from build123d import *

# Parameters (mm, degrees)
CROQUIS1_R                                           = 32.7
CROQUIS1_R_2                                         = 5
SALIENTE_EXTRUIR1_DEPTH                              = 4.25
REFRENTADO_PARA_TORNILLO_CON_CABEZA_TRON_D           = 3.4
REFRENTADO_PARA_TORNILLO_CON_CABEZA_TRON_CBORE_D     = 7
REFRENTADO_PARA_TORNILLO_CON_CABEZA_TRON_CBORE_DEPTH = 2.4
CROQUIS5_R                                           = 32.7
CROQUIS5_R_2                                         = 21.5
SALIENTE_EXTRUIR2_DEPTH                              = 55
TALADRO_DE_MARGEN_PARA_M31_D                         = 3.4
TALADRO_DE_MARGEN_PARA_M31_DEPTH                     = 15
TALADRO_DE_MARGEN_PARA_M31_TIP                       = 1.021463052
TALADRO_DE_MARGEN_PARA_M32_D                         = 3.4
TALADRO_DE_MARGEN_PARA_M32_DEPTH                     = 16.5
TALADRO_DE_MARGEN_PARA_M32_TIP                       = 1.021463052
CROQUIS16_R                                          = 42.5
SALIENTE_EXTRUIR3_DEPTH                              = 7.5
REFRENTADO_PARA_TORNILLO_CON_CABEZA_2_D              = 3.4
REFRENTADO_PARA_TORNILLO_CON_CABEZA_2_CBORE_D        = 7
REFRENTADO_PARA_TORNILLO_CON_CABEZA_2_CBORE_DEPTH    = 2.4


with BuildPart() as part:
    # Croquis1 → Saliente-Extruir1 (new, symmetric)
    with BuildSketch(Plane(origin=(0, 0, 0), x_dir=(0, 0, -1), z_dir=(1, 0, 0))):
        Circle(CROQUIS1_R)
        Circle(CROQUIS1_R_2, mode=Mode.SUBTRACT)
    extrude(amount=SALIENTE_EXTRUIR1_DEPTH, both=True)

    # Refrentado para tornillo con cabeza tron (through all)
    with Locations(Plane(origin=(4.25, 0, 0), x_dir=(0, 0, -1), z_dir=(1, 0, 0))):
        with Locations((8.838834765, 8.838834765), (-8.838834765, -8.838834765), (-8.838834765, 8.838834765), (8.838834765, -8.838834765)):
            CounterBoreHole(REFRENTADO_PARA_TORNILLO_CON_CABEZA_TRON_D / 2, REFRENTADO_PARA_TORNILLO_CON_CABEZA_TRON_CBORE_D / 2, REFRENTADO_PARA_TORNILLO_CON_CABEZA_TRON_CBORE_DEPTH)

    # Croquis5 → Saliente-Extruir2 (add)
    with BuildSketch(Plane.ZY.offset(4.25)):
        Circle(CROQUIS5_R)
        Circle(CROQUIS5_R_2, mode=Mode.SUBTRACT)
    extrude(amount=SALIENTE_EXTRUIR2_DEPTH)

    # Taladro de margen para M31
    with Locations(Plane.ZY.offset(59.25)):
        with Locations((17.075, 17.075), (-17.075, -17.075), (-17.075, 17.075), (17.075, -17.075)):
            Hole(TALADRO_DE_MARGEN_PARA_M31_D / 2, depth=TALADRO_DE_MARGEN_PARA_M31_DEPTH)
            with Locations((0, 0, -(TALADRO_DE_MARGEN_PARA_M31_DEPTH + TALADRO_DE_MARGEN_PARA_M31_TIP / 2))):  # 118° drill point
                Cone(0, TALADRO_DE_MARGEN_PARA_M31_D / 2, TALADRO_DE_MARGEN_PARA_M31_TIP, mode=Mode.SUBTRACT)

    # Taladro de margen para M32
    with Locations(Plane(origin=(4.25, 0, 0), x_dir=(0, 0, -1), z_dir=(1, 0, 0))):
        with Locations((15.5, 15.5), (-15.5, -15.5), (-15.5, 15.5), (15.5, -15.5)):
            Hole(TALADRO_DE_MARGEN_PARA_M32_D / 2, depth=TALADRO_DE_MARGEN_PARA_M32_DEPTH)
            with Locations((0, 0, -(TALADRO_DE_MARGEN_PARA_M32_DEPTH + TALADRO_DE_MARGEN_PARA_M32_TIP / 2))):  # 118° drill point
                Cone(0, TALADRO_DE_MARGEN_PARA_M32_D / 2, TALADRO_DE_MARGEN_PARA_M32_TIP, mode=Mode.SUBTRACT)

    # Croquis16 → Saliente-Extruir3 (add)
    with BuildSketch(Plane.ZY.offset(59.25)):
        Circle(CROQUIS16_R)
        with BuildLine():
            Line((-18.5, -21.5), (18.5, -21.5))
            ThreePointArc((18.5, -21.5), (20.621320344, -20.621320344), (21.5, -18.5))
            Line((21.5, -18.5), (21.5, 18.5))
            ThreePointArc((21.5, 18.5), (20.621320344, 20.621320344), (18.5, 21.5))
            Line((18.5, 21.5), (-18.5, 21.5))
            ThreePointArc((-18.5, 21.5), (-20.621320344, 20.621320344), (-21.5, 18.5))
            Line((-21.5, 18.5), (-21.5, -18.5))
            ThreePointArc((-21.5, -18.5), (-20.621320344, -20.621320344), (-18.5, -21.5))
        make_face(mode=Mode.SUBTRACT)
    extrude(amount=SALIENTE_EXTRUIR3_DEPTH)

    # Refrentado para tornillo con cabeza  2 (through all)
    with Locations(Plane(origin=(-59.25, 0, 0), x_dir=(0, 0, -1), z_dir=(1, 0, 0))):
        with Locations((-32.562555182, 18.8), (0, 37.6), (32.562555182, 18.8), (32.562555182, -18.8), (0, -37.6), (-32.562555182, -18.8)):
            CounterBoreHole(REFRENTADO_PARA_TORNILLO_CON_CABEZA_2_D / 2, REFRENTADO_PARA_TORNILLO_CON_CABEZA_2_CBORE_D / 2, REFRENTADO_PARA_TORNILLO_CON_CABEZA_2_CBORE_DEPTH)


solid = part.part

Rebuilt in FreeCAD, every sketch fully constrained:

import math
import FreeCAD as App
import Part
import Sketcher

doc = App.newDocument("Part")
body = doc.addObject("PartDesign::Body", "Body")

# Sketch on YZ plane
sketch1 = body.newObject("Sketcher::SketchObject", "Sketch")
sketch1.AttachmentSupport = (doc.getObject("YZ_Plane"), [""])
sketch1.MapMode = "FlatFace"
sketch1.addGeometry(Part.Circle(App.Vector(0, 0, 0), App.Vector(0, 0, 1), 33), False)
sketch1.addGeometry(Part.Circle(App.Vector(0, 0, 0), App.Vector(0, 0, 1), 5), False)
sketch1.addConstraint(Sketcher.Constraint("Coincident", 0, 3, -1, 1))
sketch1.addConstraint(Sketcher.Constraint("Coincident", 1, 3, -1, 1))
sketch1.addConstraint(Sketcher.Constraint("Diameter", 1, 10.0))
sketch1.addConstraint(Sketcher.Constraint("Diameter", 0, 65.4))
pad1 = body.newObject("PartDesign::Pad", "Pad")
pad1.Profile = sketch1
pad1.Length = 8.5
pad1.Midplane = True

# Sketch on YZ plane
sketch2 = body.newObject("Sketcher::SketchObject", "Sketch001")
sketch2.AttachmentSupport = (doc.getObject("YZ_Plane"), [""])
sketch2.MapMode = "FlatFace"
sketch2.AttachmentOffset = App.Placement(App.Vector(0, 0, 4.25), App.Rotation())
sketch2.addGeometry(Part.Circle(App.Vector(8.8, -8.8, 0), App.Vector(0, 0, 1), 1.7), False)
sketch2.addGeometry(Part.Circle(App.Vector(-8.8, 8.8, 0), App.Vector(0, 0, 1), 1.7), False)
sketch2.addGeometry(Part.Circle(App.Vector(8.8, 8.8, 0), App.Vector(0, 0, 1), 1.7), False)
sketch2.addGeometry(Part.Circle(App.Vector(-8.8, -8.8, 0), App.Vector(0, 0, 1), 1.7), False)
sketch2.addConstraint(Sketcher.Constraint("Equal", 0, 1))
sketch2.addConstraint(Sketcher.Constraint("Equal", 1, 2))
sketch2.addConstraint(Sketcher.Constraint("Equal", 2, 3))
sketch2.addConstraint(Sketcher.Constraint("Symmetric", 0, 3, 1, 3, -1, 1))
sketch2.addConstraint(Sketcher.Constraint("Symmetric", 2, 3, 3, 3, -1, 1))
sketch2.addConstraint(Sketcher.Constraint("Symmetric", 1, 3, 2, 3, -2))
sketch2.addConstraint(Sketcher.Constraint("Diameter", 0, 3.4))
sketch2.addConstraint(Sketcher.Constraint("DistanceX", 1, 3, 0, 3, 17.67767))
sketch2.addConstraint(Sketcher.Constraint("DistanceY", 0, 3, 1, 3, 17.67767))
doc.recompute()
hole = body.newObject("PartDesign::Hole", "Hole")
hole.Profile = sketch2
hole.ThreadType = "None"
hole.Diameter = 3.4
hole.DepthType = "ThroughAll"
hole.HoleCutType = "Counterbore"
hole.HoleCutDiameter = 7
hole.HoleCutDepth = 2.4

# Sketch on YZ plane
sketch3 = body.newObject("Sketcher::SketchObject", "Sketch002")
sketch3.AttachmentSupport = (doc.getObject("YZ_Plane"), [""])
sketch3.MapMode = "FlatFace"
sketch3.AttachmentOffset = App.Placement(App.Vector(0, 0, -4.25), App.Rotation())
sketch3.addGeometry(Part.Circle(App.Vector(0, 0, 0), App.Vector(0, 0, 1), 33), False)
sketch3.addGeometry(Part.Circle(App.Vector(0, 0, 0), App.Vector(0, 0, 1), 22), False)
sketch3.addConstraint(Sketcher.Constraint("Coincident", 0, 3, -1, 1))
sketch3.addConstraint(Sketcher.Constraint("Coincident", 1, 3, -1, 1))
sketch3.addConstraint(Sketcher.Constraint("Diameter", 1, 43.0))
sketch3.addConstraint(Sketcher.Constraint("Diameter", 0, 65.4))
pad2 = body.newObject("PartDesign::Pad", "Pad001")
pad2.Profile = sketch3
pad2.Length = 55
pad2.Reversed = True

# Sketch on YZ plane
sketch4 = body.newObject("Sketcher::SketchObject", "Sketch003")
sketch4.AttachmentSupport = (doc.getObject("YZ_Plane"), [""])
sketch4.MapMode = "FlatFace"
sketch4.AttachmentOffset = App.Placement(App.Vector(0, 0, -59.25), App.Rotation())
sketch4.addGeometry(Part.Circle(App.Vector(17.1, 17.1, 0), App.Vector(0, 0, 1), 1.7), False)
sketch4.addGeometry(Part.Circle(App.Vector(-17.1, -17.1, 0), App.Vector(0, 0, 1), 1.7), False)
sketch4.addGeometry(Part.Circle(App.Vector(17.1, -17.1, 0), App.Vector(0, 0, 1), 1.7), False)
sketch4.addGeometry(Part.Circle(App.Vector(-17.1, 17.1, 0), App.Vector(0, 0, 1), 1.7), False)
sketch4.addConstraint(Sketcher.Constraint("Equal", 0, 1))
sketch4.addConstraint(Sketcher.Constraint("Equal", 1, 2))
sketch4.addConstraint(Sketcher.Constraint("Equal", 2, 3))
sketch4.addConstraint(Sketcher.Constraint("Symmetric", 0, 3, 1, 3, -1, 1))
sketch4.addConstraint(Sketcher.Constraint("Symmetric", 2, 3, 3, 3, -1, 1))
sketch4.addConstraint(Sketcher.Constraint("Symmetric", 1, 3, 2, 3, -2))
sketch4.addConstraint(Sketcher.Constraint("Diameter", 0, 3.4))
sketch4.addConstraint(Sketcher.Constraint("DistanceX", 1, 3, 0, 3, 34.15))
sketch4.addConstraint(Sketcher.Constraint("DistanceY", 1, 3, 0, 3, 34.15))
doc.recompute()
hole2 = body.newObject("PartDesign::Hole", "Hole001")
hole2.Profile = sketch4
hole2.ThreadType = "None"
hole2.Diameter = 3.4
hole2.DepthType = "Dimension"
hole2.Depth = 15
hole2.DrillPoint = "Angled"
hole2.DrillPointAngle = 118
hole2.Reversed = True

# Sketch on YZ plane
sketch5 = body.newObject("Sketcher::SketchObject", "Sketch004")
sketch5.AttachmentSupport = (doc.getObject("YZ_Plane"), [""])
sketch5.MapMode = "FlatFace"
sketch5.AttachmentOffset = App.Placement(App.Vector(0, 0, 4.25), App.Rotation())
sketch5.addGeometry(Part.Circle(App.Vector(15.5, -15.5, 0), App.Vector(0, 0, 1), 1.7), False)
sketch5.addGeometry(Part.Circle(App.Vector(-15.5, 15.5, 0), App.Vector(0, 0, 1), 1.7), False)
sketch5.addGeometry(Part.Circle(App.Vector(15.5, 15.5, 0), App.Vector(0, 0, 1), 1.7), False)
sketch5.addGeometry(Part.Circle(App.Vector(-15.5, -15.5, 0), App.Vector(0, 0, 1), 1.7), False)
sketch5.addConstraint(Sketcher.Constraint("Equal", 0, 1))
sketch5.addConstraint(Sketcher.Constraint("Equal", 1, 2))
sketch5.addConstraint(Sketcher.Constraint("Equal", 2, 3))
sketch5.addConstraint(Sketcher.Constraint("Symmetric", 0, 3, 1, 3, -1, 1))
sketch5.addConstraint(Sketcher.Constraint("Symmetric", 2, 3, 3, 3, -1, 1))
sketch5.addConstraint(Sketcher.Constraint("Symmetric", 1, 3, 2, 3, -2))
sketch5.addConstraint(Sketcher.Constraint("Diameter", 0, 3.4))
sketch5.addConstraint(Sketcher.Constraint("DistanceX", 1, 3, 0, 3, 31.0))
sketch5.addConstraint(Sketcher.Constraint("DistanceY", 0, 3, 1, 3, 31.0))
doc.recompute()
hole3 = body.newObject("PartDesign::Hole", "Hole002")
hole3.Profile = sketch5
hole3.ThreadType = "None"
hole3.Diameter = 3.4
hole3.DepthType = "Dimension"
hole3.Depth = 16.5
hole3.DrillPoint = "Angled"
hole3.DrillPointAngle = 118

# Sketch on YZ plane
sketch6 = body.newObject("Sketcher::SketchObject", "Sketch005")
sketch6.AttachmentSupport = (doc.getObject("YZ_Plane"), [""])
sketch6.MapMode = "FlatFace"
sketch6.AttachmentOffset = App.Placement(App.Vector(0, 0, -59.25), App.Rotation())
sketch6.addGeometry(Part.Circle(App.Vector(0, 0, 0), App.Vector(0, 0, 1), 42.5), False)
sketch6.addGeometry(Part.LineSegment(App.Vector(-21.5, 18.5, 0), App.Vector(-21.5, -18.5, 0)), False)
sketch6.addGeometry(Part.ArcOfCircle(Part.Circle(App.Vector(-18.5, -18.5, 0), App.Vector(0, 0, 1), 3), math.radians(180), math.radians(270)), False)
sketch6.addGeometry(Part.LineSegment(App.Vector(-18.5, -21.5, 0), App.Vector(18.5, -21.5, 0)), False)
sketch6.addGeometry(Part.ArcOfCircle(Part.Circle(App.Vector(18.5, -18.5, 0), App.Vector(0, 0, 1), 3), math.radians(-90), math.radians(0)), False)
sketch6.addGeometry(Part.LineSegment(App.Vector(21.5, -18.5, 0), App.Vector(21.5, 18.5, 0)), False)
sketch6.addGeometry(Part.ArcOfCircle(Part.Circle(App.Vector(18.5, 18.5, 0), App.Vector(0, 0, 1), 3), math.radians(0), math.radians(90)), False)
sketch6.addGeometry(Part.LineSegment(App.Vector(18.5, 21.5, 0), App.Vector(-18.5, 21.5, 0)), False)
sketch6.addGeometry(Part.ArcOfCircle(Part.Circle(App.Vector(-18.5, 18.5, 0), App.Vector(0, 0, 1), 3), math.radians(90), math.radians(180)), False)
sketch6.addConstraint(Sketcher.Constraint("Tangent", 1, 2, 2, 1))
sketch6.addConstraint(Sketcher.Constraint("Tangent", 2, 2, 3, 1))
sketch6.addConstraint(Sketcher.Constraint("Tangent", 3, 2, 4, 1))
sketch6.addConstraint(Sketcher.Constraint("Tangent", 4, 2, 5, 1))
sketch6.addConstraint(Sketcher.Constraint("Tangent", 5, 2, 6, 1))
sketch6.addConstraint(Sketcher.Constraint("Tangent", 6, 2, 7, 1))
sketch6.addConstraint(Sketcher.Constraint("Tangent", 7, 2, 8, 1))
sketch6.addConstraint(Sketcher.Constraint("Tangent", 8, 2, 1, 1))
sketch6.addConstraint(Sketcher.Constraint("Vertical", 1))
sketch6.addConstraint(Sketcher.Constraint("Horizontal", 3))
sketch6.addConstraint(Sketcher.Constraint("Vertical", 5))
sketch6.addConstraint(Sketcher.Constraint("Horizontal", 7))
sketch6.addConstraint(Sketcher.Constraint("Coincident", 0, 3, -1, 1))
sketch6.addConstraint(Sketcher.Constraint("Equal", 2, 4))
sketch6.addConstraint(Sketcher.Constraint("Equal", 4, 6))
sketch6.addConstraint(Sketcher.Constraint("Equal", 6, 8))
sketch6.addConstraint(Sketcher.Constraint("Symmetric", 2, 3, 6, 3, -1, 1))
sketch6.addConstraint(Sketcher.Constraint("Equal", 7, 1))
sketch6.addConstraint(Sketcher.Constraint("Diameter", 0, 85.0))
sketch6.addConstraint(Sketcher.Constraint("Radius", 2, 3.0))
sketch6.addConstraint(Sketcher.Constraint("DistanceX", 3, 1, 3, 2, 37.0))
pad3 = body.newObject("PartDesign::Pad", "Pad002")
pad3.Profile = sketch6
pad3.Length = 7.5
pad3.Reversed = True

# Sketch on YZ plane
sketch7 = body.newObject("Sketcher::SketchObject", "Sketch006")
sketch7.AttachmentSupport = (doc.getObject("YZ_Plane"), [""])
sketch7.MapMode = "FlatFace"
sketch7.AttachmentOffset = App.Placement(App.Vector(0, 0, -59.25), App.Rotation())
sketch7.addGeometry(Part.Circle(App.Vector(18.8, 32.6, 0), App.Vector(0, 0, 1), 1.7), False)
sketch7.addGeometry(Part.Circle(App.Vector(37.6, 0, 0), App.Vector(0, 0, 1), 1.7), False)
sketch7.addGeometry(Part.Circle(App.Vector(18.8, -32.6, 0), App.Vector(0, 0, 1), 1.7), False)
sketch7.addGeometry(Part.Circle(App.Vector(-18.8, -32.6, 0), App.Vector(0, 0, 1), 1.7), False)
sketch7.addGeometry(Part.Circle(App.Vector(-37.6, 0, 0), App.Vector(0, 0, 1), 1.7), False)
sketch7.addGeometry(Part.Circle(App.Vector(-18.8, 32.6, 0), App.Vector(0, 0, 1), 1.7), False)
sketch7.addConstraint(Sketcher.Constraint("Equal", 0, 1))
sketch7.addConstraint(Sketcher.Constraint("Equal", 1, 2))
sketch7.addConstraint(Sketcher.Constraint("Equal", 2, 3))
sketch7.addConstraint(Sketcher.Constraint("Equal", 3, 4))
sketch7.addConstraint(Sketcher.Constraint("Equal", 4, 5))
sketch7.addConstraint(Sketcher.Constraint("Symmetric", 0, 3, 3, 3, -1, 1))
sketch7.addConstraint(Sketcher.Constraint("Symmetric", 1, 3, 4, 3, -1, 1))
sketch7.addConstraint(Sketcher.Constraint("Symmetric", 2, 3, 5, 3, -1, 1))
sketch7.addConstraint(Sketcher.Constraint("Symmetric", 2, 3, 3, 3, -2))
sketch7.addConstraint(Sketcher.Constraint("PointOnObject", 1, 3, -1))
sketch7.addConstraint(Sketcher.Constraint("Diameter", 0, 3.4))
sketch7.addConstraint(Sketcher.Constraint("DistanceX", -1, 1, 0, 3, 18.8))
sketch7.addConstraint(Sketcher.Constraint("DistanceX", -1, 1, 1, 3, 37.6))
sketch7.addConstraint(Sketcher.Constraint("DistanceY", 2, 3, 0, 3, 65.12511))
doc.recompute()
hole4 = body.newObject("PartDesign::Hole", "Hole003")
hole4.Profile = sketch7
hole4.ThreadType = "None"
hole4.Diameter = 3.4
hole4.DepthType = "ThroughAll"
hole4.HoleCutType = "Counterbore"
hole4.HoleCutDiameter = 7
hole4.HoleCutDepth = 2.4

doc.recompute()
